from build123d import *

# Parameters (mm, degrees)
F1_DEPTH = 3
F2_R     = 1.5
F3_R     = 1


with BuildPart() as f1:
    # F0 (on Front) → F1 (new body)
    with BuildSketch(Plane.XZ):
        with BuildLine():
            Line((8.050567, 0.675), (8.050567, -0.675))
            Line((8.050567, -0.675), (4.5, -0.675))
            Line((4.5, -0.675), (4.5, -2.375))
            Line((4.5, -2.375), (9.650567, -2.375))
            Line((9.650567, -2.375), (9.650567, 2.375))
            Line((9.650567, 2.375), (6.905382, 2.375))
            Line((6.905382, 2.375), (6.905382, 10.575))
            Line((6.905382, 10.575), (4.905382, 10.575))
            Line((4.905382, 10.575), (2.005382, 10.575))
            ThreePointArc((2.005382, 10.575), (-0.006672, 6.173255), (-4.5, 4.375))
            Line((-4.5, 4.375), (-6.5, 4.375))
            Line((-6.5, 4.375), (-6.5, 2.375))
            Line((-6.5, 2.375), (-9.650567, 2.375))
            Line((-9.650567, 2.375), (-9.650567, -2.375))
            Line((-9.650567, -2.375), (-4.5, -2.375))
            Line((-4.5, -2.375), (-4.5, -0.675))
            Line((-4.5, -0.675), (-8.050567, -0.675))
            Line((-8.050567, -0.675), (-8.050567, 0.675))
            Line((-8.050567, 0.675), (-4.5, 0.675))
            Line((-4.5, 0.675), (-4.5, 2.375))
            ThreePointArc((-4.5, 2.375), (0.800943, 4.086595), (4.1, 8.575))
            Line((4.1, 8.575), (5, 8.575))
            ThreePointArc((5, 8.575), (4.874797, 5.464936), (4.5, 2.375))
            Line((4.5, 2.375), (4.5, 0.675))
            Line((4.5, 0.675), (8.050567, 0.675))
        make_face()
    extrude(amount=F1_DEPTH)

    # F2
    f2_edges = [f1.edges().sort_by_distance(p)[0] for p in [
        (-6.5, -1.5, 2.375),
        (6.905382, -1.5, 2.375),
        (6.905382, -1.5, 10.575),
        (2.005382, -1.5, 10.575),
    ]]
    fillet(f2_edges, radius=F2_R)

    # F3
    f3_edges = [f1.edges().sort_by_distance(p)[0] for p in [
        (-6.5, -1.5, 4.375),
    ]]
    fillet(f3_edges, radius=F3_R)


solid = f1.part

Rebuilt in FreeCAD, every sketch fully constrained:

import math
import FreeCAD as App
import Part
import Sketcher
from FreeCAD import Vector


def edges_at(feature, points):
    """Names of the edges that pass closest to the given points."""
    edges = feature.Shape.Edges
    near = lambda p: min(range(len(edges)), key=lambda i: edges[i].distToShape(Part.Vertex(*p))[0])
    return sorted({f"Edge{near(p) + 1}" for p in points})

doc = App.newDocument("Part")
body = doc.addObject("PartDesign::Body", "Body")

# Sketch on XZ plane
sketch1 = body.newObject("Sketcher::SketchObject", "Sketch")
sketch1.AttachmentSupport = (doc.getObject("XZ_Plane"), [""])
sketch1.MapMode = "FlatFace"
sketch1.addGeometry(Part.LineSegment(Vector(8.1, 0.7, 0), Vector(8.1, -0.7, 0)), False)
sketch1.addGeometry(Part.LineSegment(Vector(8.1, -0.7, 0), Vector(4.5, -0.7, 0)), False)
sketch1.addGeometry(Part.LineSegment(Vector(4.5, -0.7, 0), Vector(4.5, -2.4, 0)), False)
sketch1.addGeometry(Part.LineSegment(Vector(4.5, -2.4, 0), Vector(9.7, -2.4, 0)), False)
sketch1.addGeometry(Part.LineSegment(Vector(9.7, -2.4, 0), Vector(9.7, 2.4, 0)), False)
sketch1.addGeometry(Part.LineSegment(Vector(9.7, 2.4, 0), Vector(6.9, 2.4, 0)), False)
sketch1.addGeometry(Part.LineSegment(Vector(6.9, 2.4, 0), Vector(6.9, 10.6, 0)), False)
sketch1.addGeometry(Part.LineSegment(Vector(6.9, 10.6, 0), Vector(2, 10.6, 0)), False)
sketch1.addGeometry(Part.ArcOfCircle(Part.Circle(Vector(-4.5, 10.9, 0), Vector(0, 0, 1), 6.5), math.radians(-90), math.radians(-3)), False)
sketch1.addGeometry(Part.LineSegment(Vector(-4.5, 4.4, 0), Vector(-6.5, 4.4, 0)), False)
sketch1.addGeometry(Part.LineSegment(Vector(-6.5, 4.4, 0), Vector(-6.5, 2.4, 0)), False)
sketch1.addGeometry(Part.LineSegment(Vector(-6.5, 2.4, 0), Vector(-9.7, 2.4, 0)), False)
sketch1.addGeometry(Part.LineSegment(Vector(-9.7, 2.4, 0), Vector(-9.7, -2.4, 0)), False)
sketch1.addGeometry(Part.LineSegment(Vector(-9.7, -2.4, 0), Vector(-4.5, -2.4, 0)), False)
sketch1.addGeometry(Part.LineSegment(Vector(-4.5, -2.4, 0), Vector(-4.5, -0.7, 0)), False)
sketch1.addGeometry(Part.LineSegment(Vector(-4.5, -0.7, 0), Vector(-8.1, -0.7, 0)), False)
sketch1.addGeometry(Part.LineSegment(Vector(-8.1, -0.7, 0), Vector(-8.1, 0.7, 0)), False)
sketch1.addGeometry(Part.LineSegment(Vector(-8.1, 0.7, 0), Vector(-4.5, 0.7, 0)), False)
sketch1.addGeometry(Part.LineSegment(Vector(-4.5, 0.7, 0), Vector(-4.5, 2.4, 0)), False)
sketch1.addGeometry(Part.ArcOfCircle(Part.Circle(Vector(-4.5, 11.4, 0), Vector(0, 0, 1), 9.1), math.radians(-90), math.radians(-18)), False)
sketch1.addGeometry(Part.LineSegment(Vector(4.1, 8.6, 0), Vector(5, 8.6, 0)), False)
sketch1.addGeometry(Part.ArcOfCircle(Part.Circle(Vector(-33.7, 8.6, 0), Vector(0, 0, 1), 38.7), math.radians(-9.22), math.radians(0)), False)
sketch1.addGeometry(Part.LineSegment(Vector(4.5, 2.4, 0), Vector(4.5, 0.7, 0)), False)
sketch1.addGeometry(Part.LineSegment(Vector(4.5, 0.7, 0), Vector(8.1, 0.7, 0)), False)
sketch1.addConstraint(Sketcher.Constraint("Coincident", 0, 2, 1, 1))
sketch1.addConstraint(Sketcher.Constraint("Coincident", 1, 2, 2, 1))
sketch1.addConstraint(Sketcher.Constraint("Coincident", 2, 2, 3, 1))
sketch1.addConstraint(Sketcher.Constraint("Coincident", 3, 2, 4, 1))
sketch1.addConstraint(Sketcher.Constraint("Coincident", 4, 2, 5, 1))
sketch1.addConstraint(Sketcher.Constraint("Coincident", 5, 2, 6, 1))
sketch1.addConstraint(Sketcher.Constraint("Coincident", 6, 2, 7, 1))
sketch1.addConstraint(Sketcher.Constraint("Coincident", 7, 2, 8, 2))
sketch1.addConstraint(Sketcher.Constraint("Tangent", 8, 1, 9, 1))
sketch1.addConstraint(Sketcher.Constraint("Coincident", 9, 2, 10, 1))
sketch1.addConstraint(Sketcher.Constraint("Coincident", 10, 2, 11, 1))
sketch1.addConstraint(Sketcher.Constraint("Coincident", 11, 2, 12, 1))
sketch1.addConstraint(Sketcher.Constraint("Coincident", 12, 2, 13, 1))
sketch1.addConstraint(Sketcher.Constraint("Coincident", 13, 2, 14, 1))
sketch1.addConstraint(Sketcher.Constraint("Coincident", 14, 2, 15, 1))
sketch1.addConstraint(Sketcher.Constraint("Coincident", 15, 2, 16, 1))
sketch1.addConstraint(Sketcher.Constraint("Coincident", 16, 2, 17, 1))
sketch1.addConstraint(Sketcher.Constraint("Coincident", 17, 2, 18, 1))
sketch1.addConstraint(Sketcher.Constraint("Coincident", 18, 2, 19, 1))
sketch1.addConstraint(Sketcher.Constraint("Coincident", 19, 2, 20, 1))
sketch1.addConstraint(Sketcher.Constraint("Coincident", 20, 2, 21, 2))
sketch1.addConstraint(Sketcher.Constraint("Coincident", 21, 1, 22, 1))
sketch1.addConstraint(Sketcher.Constraint("Coincident", 22, 2, 23, 1))
sketch1.addConstraint(Sketcher.Constraint("Coincident", 23, 2, 0, 1))
sketch1.addConstraint(Sketcher.Constraint("Vertical", 0))
sketch1.addConstraint(Sketcher.Constraint("Horizontal", 1))
sketch1.addConstraint(Sketcher.Constraint("Vertical", 2))
sketch1.addConstraint(Sketcher.Constraint("Horizontal", 3))
sketch1.addConstraint(Sketcher.Constraint("Vertical", 4))
sketch1.addConstraint(Sketcher.Constraint("Horizontal", 5))
sketch1.addConstraint(Sketcher.Constraint("Vertical", 6))
sketch1.addConstraint(Sketcher.Constraint("Horizontal", 7))
sketch1.addConstraint(Sketcher.Constraint("Horizontal", 9))
sketch1.addConstraint(Sketcher.Constraint("Vertical", 10))
sketch1.addConstraint(Sketcher.Constraint("Horizontal", 11))
sketch1.addConstraint(Sketcher.Constraint("Vertical", 12))
sketch1.addConstraint(Sketcher.Constraint("Horizontal", 13))
sketch1.addConstraint(Sketcher.Constraint("Vertical", 14))
sketch1.addConstraint(Sketcher.Constraint("Horizontal", 15))
sketch1.addConstraint(Sketcher.Constraint("Vertical", 16))
sketch1.addConstraint(Sketcher.Constraint("Horizontal", 17))
sketch1.addConstraint(Sketcher.Constraint("Vertical", 18))
sketch1.addConstraint(Sketcher.Constraint("Horizontal", 20))
sketch1.addConstraint(Sketcher.Constraint("Vertical", 22))
sketch1.addConstraint(Sketcher.Constraint("Horizontal", 23))
sketch1.addConstraint(Sketcher.Constraint("Symmetric", 3, 2, 11, 2, -1, 1))
sketch1.addConstraint(Sketcher.Constraint("Symmetric", 0, 2, 16, 2, -1, 1))
sketch1.addConstraint(Sketcher.Constraint("Symmetric", 2, 2, 18, 2, -1, 1))
sketch1.addConstraint(Sketcher.Constraint("Symmetric", 13, 2, 21, 1, -1, 1))
sketch1.addConstraint(Sketcher.Constraint("Symmetric", 2, 2, 13, 2, -2))
sketch1.addConstraint(Sketcher.Constraint("Horizontal", 5, 2, 10, 2))
sketch1.addConstraint(Sketcher.Constraint("Horizontal", 1, 2, 14, 2))
sketch1.addConstraint(Sketcher.Constraint("Horizontal", 17, 2, 22, 2))
sketch1.addConstraint(Sketcher.Constraint("Vertical", 8, 3, 19, 3))
sketch1.addConstraint(Sketcher.Constraint("Vertical", 8, 1, 13, 2))
sketch1.addConstraint(Sketcher.Constraint("Equal", 9, 10))
sketch1.addConstraint(Sketcher.Constraint("DistanceX", 9, 2, 9, 1, 2.0))
sketch1.addConstraint(Sketcher.Constraint("DistanceX", 7, 2, 7, 1, 4.9))
sketch1.addConstraint(Sketcher.Constraint("DistanceX", 20, 1, 20, 2, 0.9))
sketch1.addConstraint(Sketcher.Constraint("DistanceY", 2, 2, 2, 1, 1.7))
sketch1.addConstraint(Sketcher.Constraint("DistanceY", 6, 1, 6, 2, 8.2))
sketch1.addConstraint(Sketcher.Constraint("DistanceX", -1, 1, 20, 2, 5.0))
sketch1.addConstraint(Sketcher.Constraint("DistanceX", 8, 3, 1, 2, 9.0))
sketch1.addConstraint(Sketcher.Constraint("DistanceY", 19, 2, 7, 2, 2.0))
sketch1.addConstraint(Sketcher.Constraint("DistanceY", 0, 2, 0, 1, 1.35))
sketch1.addConstraint(Sketcher.Constraint("DistanceX", 0, 2, 3, 2, 1.6))
sketch1.addConstraint(Sketcher.Constraint("Radius", 8, 6.512903))
sketch1.addConstraint(Sketcher.Constraint("Radius", 21, 38.690136))
sketch1.addConstraint(Sketcher.Constraint("DistanceX", 1, 2, 1, 1, 3.550567))
pad1 = body.newObject("PartDesign::Pad", "Pad")
pad1.Profile = sketch1
pad1.Length = 3
doc.recompute()

fillet = body.newObject("PartDesign::Fillet", "Fillet")
fillet.Base = (pad1, edges_at(pad1, [
    (-6.5, -1.5, 2.375),
    (6.905, -1.5, 2.375),
    (6.905, -1.5, 10.575),
    (2.005, -1.5, 10.575),
]))
fillet.Radius = 1.5
doc.recompute()

fillet2 = body.newObject("PartDesign::Fillet", "Fillet001")
fillet2.Base = (fillet, edges_at(fillet, [(-6.5, -1.5, 4.375)]))
fillet2.Radius = 1

doc.recompute()
